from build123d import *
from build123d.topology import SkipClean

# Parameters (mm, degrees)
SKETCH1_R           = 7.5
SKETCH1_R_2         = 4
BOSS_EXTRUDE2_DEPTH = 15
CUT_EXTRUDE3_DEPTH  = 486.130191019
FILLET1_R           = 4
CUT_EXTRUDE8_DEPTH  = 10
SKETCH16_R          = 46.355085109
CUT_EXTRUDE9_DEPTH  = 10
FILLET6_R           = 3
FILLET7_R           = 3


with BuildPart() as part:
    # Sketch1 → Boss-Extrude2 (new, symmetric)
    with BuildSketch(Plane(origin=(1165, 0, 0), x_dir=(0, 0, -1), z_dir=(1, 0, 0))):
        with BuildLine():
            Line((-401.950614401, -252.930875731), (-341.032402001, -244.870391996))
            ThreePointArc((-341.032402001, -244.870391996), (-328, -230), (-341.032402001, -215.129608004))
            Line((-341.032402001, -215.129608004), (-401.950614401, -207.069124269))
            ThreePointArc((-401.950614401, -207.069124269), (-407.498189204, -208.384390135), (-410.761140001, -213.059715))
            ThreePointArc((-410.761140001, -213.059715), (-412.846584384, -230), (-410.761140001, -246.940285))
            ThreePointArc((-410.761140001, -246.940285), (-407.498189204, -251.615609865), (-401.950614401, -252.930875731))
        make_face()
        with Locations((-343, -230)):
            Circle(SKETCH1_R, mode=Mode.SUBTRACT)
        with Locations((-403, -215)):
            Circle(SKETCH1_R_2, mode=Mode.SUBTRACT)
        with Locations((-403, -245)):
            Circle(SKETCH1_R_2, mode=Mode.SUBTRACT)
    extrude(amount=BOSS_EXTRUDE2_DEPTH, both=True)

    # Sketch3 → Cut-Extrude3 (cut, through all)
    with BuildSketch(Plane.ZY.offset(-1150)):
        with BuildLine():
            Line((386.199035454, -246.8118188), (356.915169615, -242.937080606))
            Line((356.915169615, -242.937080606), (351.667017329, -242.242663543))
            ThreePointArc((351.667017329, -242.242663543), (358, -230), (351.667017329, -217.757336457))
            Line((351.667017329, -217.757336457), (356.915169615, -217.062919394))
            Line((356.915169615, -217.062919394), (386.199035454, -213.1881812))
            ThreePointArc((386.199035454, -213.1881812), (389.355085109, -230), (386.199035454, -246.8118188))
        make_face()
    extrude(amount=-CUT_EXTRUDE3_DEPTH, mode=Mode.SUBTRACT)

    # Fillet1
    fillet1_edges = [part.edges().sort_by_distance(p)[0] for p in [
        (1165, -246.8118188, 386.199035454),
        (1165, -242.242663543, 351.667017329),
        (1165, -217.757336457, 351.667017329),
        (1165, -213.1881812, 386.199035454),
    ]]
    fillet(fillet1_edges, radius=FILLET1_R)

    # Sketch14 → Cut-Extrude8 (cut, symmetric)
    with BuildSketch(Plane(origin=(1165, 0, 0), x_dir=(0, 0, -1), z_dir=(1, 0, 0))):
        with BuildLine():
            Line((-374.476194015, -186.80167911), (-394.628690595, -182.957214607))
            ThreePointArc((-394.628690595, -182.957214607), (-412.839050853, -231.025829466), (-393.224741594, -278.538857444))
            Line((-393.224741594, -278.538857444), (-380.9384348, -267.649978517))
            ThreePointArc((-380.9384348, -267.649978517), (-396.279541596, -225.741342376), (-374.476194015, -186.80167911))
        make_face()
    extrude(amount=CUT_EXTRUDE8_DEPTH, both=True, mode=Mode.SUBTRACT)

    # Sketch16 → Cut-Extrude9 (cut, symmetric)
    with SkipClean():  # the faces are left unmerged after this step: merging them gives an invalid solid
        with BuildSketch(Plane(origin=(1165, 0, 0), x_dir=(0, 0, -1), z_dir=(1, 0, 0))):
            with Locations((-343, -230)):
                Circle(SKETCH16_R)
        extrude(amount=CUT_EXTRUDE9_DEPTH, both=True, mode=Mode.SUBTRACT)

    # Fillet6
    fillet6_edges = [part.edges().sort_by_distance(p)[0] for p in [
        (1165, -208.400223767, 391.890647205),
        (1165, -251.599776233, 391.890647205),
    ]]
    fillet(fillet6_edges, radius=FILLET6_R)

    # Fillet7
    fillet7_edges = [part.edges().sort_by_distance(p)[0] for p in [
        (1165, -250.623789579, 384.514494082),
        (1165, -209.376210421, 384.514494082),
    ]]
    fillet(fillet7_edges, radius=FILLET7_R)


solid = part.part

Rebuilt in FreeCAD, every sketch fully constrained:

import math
import FreeCAD as App
import Part
import Sketcher
from FreeCAD import Vector


def edges_at(feature, points):
    """Names of the edges that pass closest to the given points."""
    edges = feature.Shape.Edges
    near = lambda p: min(range(len(edges)), key=lambda i: edges[i].distToShape(Part.Vertex(*p))[0])
    return sorted({f"Edge{near(p) + 1}" for p in points})

doc = App.newDocument("Part")
body = doc.addObject("PartDesign::Body", "Body")

# Sketch on YZ plane
sketch1 = body.newObject("Sketcher::SketchObject", "Sketch")
sketch1.AttachmentSupport = (doc.getObject("YZ_Plane"), [""])
sketch1.MapMode = "FlatFace"
sketch1.AttachmentOffset = App.Placement(Vector(0, 0, 1165), App.Rotation())
sketch1.addGeometry([
    Part.LineSegment(Vector(-252.930876, 401.950614, 0), Vector(-244.870392, 341.032402, 0)),  # 0
    Part.ArcOfCircle(Part.Circle(Vector(-230, 343, 0), Vector(0, 0, 1), 15), math.radians(-172.462608), math.radians(-7.537392)),  # 1
    Part.LineSegment(Vector(-215.129608, 341.032402, 0), Vector(-207.069124, 401.950614, 0)),  # 2
    Part.ArcOfCircle(Part.Circle(Vector(-215, 403, 0), Vector(0, 0, 1), 8), math.radians(-7.537392), math.radians(75.963757)),  # 3
    Part.ArcOfCircle(Part.Circle(Vector(-230, 343, 0), Vector(0, 0, 1), 69.846584), math.radians(75.963757), math.radians(104.036243)),  # 4
    Part.ArcOfCircle(Part.Circle(Vector(-245, 403, 0), Vector(0, 0, 1), 8), math.radians(104.036243), math.radians(187.537392)),  # 5
    Part.Circle(Vector(-245, 403, 0), Vector(0, 0, 1), 4),  # 6
    Part.Circle(Vector(-215, 403, 0), Vector(0, 0, 1), 4),  # 7
    Part.Circle(Vector(-230, 343, 0), Vector(0, 0, 1), 7.5),  # 8
], False)
sketch1.addConstraint([
    Sketcher.Constraint("Tangent", 0, 2, 1, 1),
    Sketcher.Constraint("Tangent", 1, 2, 2, 1),
    Sketcher.Constraint("Tangent", 2, 2, 3, 1),
    Sketcher.Constraint("Tangent", 3, 2, 4, 1),
    Sketcher.Constraint("Tangent", 4, 2, 5, 1),
    Sketcher.Constraint("Tangent", 5, 2, 0, 1),
    Sketcher.Constraint("Coincident", 4, 3, 1, 3),
    Sketcher.Constraint("Coincident", 6, 3, 5, 3),
    Sketcher.Constraint("Coincident", 7, 3, 3, 3),
    Sketcher.Constraint("Coincident", 8, 3, 1, 3),
    Sketcher.Constraint("Equal", 3, 5),
    Sketcher.Constraint("Equal", 6, 7),
    Sketcher.Constraint("Horizontal", 3, 3, 5, 3),
    Sketcher.Constraint("Diameter", 6, 8.0),
    Sketcher.Constraint("Diameter", 8, 15.0),
    Sketcher.Constraint("Radius", 1, 15.0),
    Sketcher.Constraint("Radius", 3, 8.0),
    Sketcher.Constraint("DistanceX", 1, 3, -1, 1, 230.0),
    Sketcher.Constraint("DistanceY", -1, 1, 1, 3, 343.0),
    Sketcher.Constraint("DistanceX", 3, 3, -1, 1, 215.0),
    Sketcher.Constraint("DistanceY", -1, 1, 3, 3, 403.0),
])
pad1 = body.newObject("PartDesign::Pad", "Pad")
pad1.Profile = sketch1
pad1.Length = 30
pad1.Midplane = True

# Sketch on YZ plane
sketch2 = body.newObject("Sketcher::SketchObject", "Sketch001")
sketch2.AttachmentSupport = (doc.getObject("YZ_Plane"), [""])
sketch2.MapMode = "FlatFace"
sketch2.AttachmentOffset = App.Placement(Vector(0, 0, 1150), App.Rotation())
sketch2.addGeometry([
    Part.LineSegment(Vector(-242.937081, 356.91517, 0), Vector(-246.811819, 386.199035, 0)),  # 0
    Part.ArcOfCircle(Part.Circle(Vector(-230, 343, 0), Vector(0, 0, 1), 46.355085), math.radians(68.735447), math.radians(111.264553)),  # 1
    Part.LineSegment(Vector(-213.188181, 386.199035, 0), Vector(-217.062919, 356.91517, 0)),  # 2
    Part.LineSegment(Vector(-217.062919, 356.91517, 0), Vector(-217.757336, 351.667017, 0)),  # 3
    Part.ArcOfCircle(Part.Circle(Vector(-230, 343, 0), Vector(0, 0, 1), 15), math.radians(35.296036), math.radians(144.703964)),  # 4
    Part.LineSegment(Vector(-242.242664, 351.667017, 0), Vector(-242.937081, 356.91517, 0)),  # 5
], False)
sketch2.addConstraint([
    Sketcher.Constraint("Coincident", 0, 2, 1, 2),
    Sketcher.Constraint("Coincident", 1, 1, 2, 1),
    Sketcher.Constraint("Coincident", 2, 2, 3, 1),
    Sketcher.Constraint("Coincident", 3, 2, 4, 1),
    Sketcher.Constraint("Coincident", 4, 2, 5, 1),
    Sketcher.Constraint("Coincident", 5, 2, 0, 1),
    Sketcher.Constraint("Coincident", 4, 3, 1, 3),
    Sketcher.Constraint("Parallel", 2, 3),
    Sketcher.Constraint("Parallel", 0, 5),
    Sketcher.Constraint("Horizontal", 0, 2, 1, 1),
    Sketcher.Constraint("Horizontal", 3, 2, 4, 2),
    Sketcher.Constraint("Horizontal", 2, 2, 5, 2),
    Sketcher.Constraint("Radius", 4, 15.0),
    Sketcher.Constraint("DistanceX", 1, 3, -1, 1, 230.0),
    Sketcher.Constraint("DistanceY", -1, 1, 1, 3, 343.0),
    Sketcher.Constraint("Radius", 1, 46.355085),
    Sketcher.Constraint("Distance", 0, 29.539099),
    Sketcher.Constraint("DistanceX", 0, 2, 2, 2, 29.748899),
    Sketcher.Constraint("DistanceX", 0, 2, -1, 1, 246.811819),
])
pocket1 = body.newObject("PartDesign::Pocket", "Pocket")
pocket1.Profile = sketch2
pocket1.Type = "ThroughAll"
pocket1.Reversed = True
doc.recompute()

fillet = body.newObject("PartDesign::Fillet", "Fillet")
fillet.Base = (pocket1, edges_at(pocket1, [
    (1165, -246.812, 386.199),
    (1165, -242.243, 351.667),
    (1165, -217.757, 351.667),
    (1165, -213.188, 386.199),
]))
fillet.Radius = 4

# Sketch on YZ plane
sketch3 = body.newObject("Sketcher::SketchObject", "Sketch002")
sketch3.AttachmentSupport = (doc.getObject("YZ_Plane"), [""])
sketch3.MapMode = "FlatFace"
sketch3.AttachmentOffset = App.Placement(Vector(0, 0, 1165), App.Rotation())
sketch3.addGeometry([
    Part.LineSegment(Vector(-186.801679, 374.476194, 0), Vector(-182.957215, 394.628691, 0)),
    Part.ArcOfCircle(Part.Circle(Vector(-230, 343, 0), Vector(0, 0, 1), 69.846584), math.radians(47.660993), math.radians(134.022062)),
    Part.LineSegment(Vector(-278.538857, 393.224742, 0), Vector(-267.649979, 380.938435, 0)),
    Part.ArcOfCircle(Part.Circle(Vector(-230, 343, 0), Vector(0, 0, 1), 53.449469), math.radians(36.078725), math.radians(134.781352)),
], False)
sketch3.addConstraint([
    Sketcher.Constraint("Coincident", 0, 2, 1, 1),
    Sketcher.Constraint("Coincident", 1, 2, 2, 1),
    Sketcher.Constraint("Coincident", 2, 2, 3, 2),
    Sketcher.Constraint("Coincident", 3, 1, 0, 1),
    Sketcher.Constraint("Coincident", 3, 3, 1, 3),
    Sketcher.Constraint("DistanceX", 1, 3, -1, 1, 230.0),
    Sketcher.Constraint("DistanceY", -1, 1, 1, 3, 343.0),
    Sketcher.Constraint("Radius", 3, 53.449469),
    Sketcher.Constraint("Radius", 1, 69.846584),
    Sketcher.Constraint("DistanceX", 2, 2, 3, 1, 80.848299),
    Sketcher.Constraint("Distance", 0, 20.515921),
    Sketcher.Constraint("DistanceY", -1, 1, 0, 2, 394.628691),
    Sketcher.Constraint("DistanceY", -1, 1, 1, 2, 393.224742),
])
pocket2 = body.newObject("PartDesign::Pocket", "Pocket001")
pocket2.Profile = sketch3
pocket2.Length = 20
pocket2.Midplane = True

# Sketch on YZ plane
sketch4 = body.newObject("Sketcher::SketchObject", "Sketch003")
sketch4.AttachmentSupport = (doc.getObject("YZ_Plane"), [""])
sketch4.MapMode = "FlatFace"
sketch4.AttachmentOffset = App.Placement(Vector(0, 0, 1165), App.Rotation())
sketch4.addGeometry(Part.Circle(Vector(-230, 343, 0), Vector(0, 0, 1), 46.355085), False)
sketch4.addConstraint([
    Sketcher.Constraint("DistanceX", 0, 3, -1, 1, 230.0),
    Sketcher.Constraint("DistanceY", -1, 1, 0, 3, 343.0),
    Sketcher.Constraint("Diameter", 0, 92.71017),
])
pocket3 = body.newObject("PartDesign::Pocket", "Pocket002")
pocket3.Profile = sketch4
pocket3.Length = 20
pocket3.Midplane = True
doc.recompute()

fillet2 = body.newObject("PartDesign::Fillet", "Fillet001")
fillet2.Base = (pocket3, edges_at(pocket3, [(1165, -208.4, 391.891), (1165, -251.6, 391.891)]))
fillet2.Radius = 3
doc.recompute()

fillet3 = body.newObject("PartDesign::Fillet", "Fillet002")
fillet3.Base = (fillet2, edges_at(fillet2, [(1165, -250.624, 384.514), (1165, -209.376, 384.514)]))
fillet3.Radius = 3

doc.recompute()
